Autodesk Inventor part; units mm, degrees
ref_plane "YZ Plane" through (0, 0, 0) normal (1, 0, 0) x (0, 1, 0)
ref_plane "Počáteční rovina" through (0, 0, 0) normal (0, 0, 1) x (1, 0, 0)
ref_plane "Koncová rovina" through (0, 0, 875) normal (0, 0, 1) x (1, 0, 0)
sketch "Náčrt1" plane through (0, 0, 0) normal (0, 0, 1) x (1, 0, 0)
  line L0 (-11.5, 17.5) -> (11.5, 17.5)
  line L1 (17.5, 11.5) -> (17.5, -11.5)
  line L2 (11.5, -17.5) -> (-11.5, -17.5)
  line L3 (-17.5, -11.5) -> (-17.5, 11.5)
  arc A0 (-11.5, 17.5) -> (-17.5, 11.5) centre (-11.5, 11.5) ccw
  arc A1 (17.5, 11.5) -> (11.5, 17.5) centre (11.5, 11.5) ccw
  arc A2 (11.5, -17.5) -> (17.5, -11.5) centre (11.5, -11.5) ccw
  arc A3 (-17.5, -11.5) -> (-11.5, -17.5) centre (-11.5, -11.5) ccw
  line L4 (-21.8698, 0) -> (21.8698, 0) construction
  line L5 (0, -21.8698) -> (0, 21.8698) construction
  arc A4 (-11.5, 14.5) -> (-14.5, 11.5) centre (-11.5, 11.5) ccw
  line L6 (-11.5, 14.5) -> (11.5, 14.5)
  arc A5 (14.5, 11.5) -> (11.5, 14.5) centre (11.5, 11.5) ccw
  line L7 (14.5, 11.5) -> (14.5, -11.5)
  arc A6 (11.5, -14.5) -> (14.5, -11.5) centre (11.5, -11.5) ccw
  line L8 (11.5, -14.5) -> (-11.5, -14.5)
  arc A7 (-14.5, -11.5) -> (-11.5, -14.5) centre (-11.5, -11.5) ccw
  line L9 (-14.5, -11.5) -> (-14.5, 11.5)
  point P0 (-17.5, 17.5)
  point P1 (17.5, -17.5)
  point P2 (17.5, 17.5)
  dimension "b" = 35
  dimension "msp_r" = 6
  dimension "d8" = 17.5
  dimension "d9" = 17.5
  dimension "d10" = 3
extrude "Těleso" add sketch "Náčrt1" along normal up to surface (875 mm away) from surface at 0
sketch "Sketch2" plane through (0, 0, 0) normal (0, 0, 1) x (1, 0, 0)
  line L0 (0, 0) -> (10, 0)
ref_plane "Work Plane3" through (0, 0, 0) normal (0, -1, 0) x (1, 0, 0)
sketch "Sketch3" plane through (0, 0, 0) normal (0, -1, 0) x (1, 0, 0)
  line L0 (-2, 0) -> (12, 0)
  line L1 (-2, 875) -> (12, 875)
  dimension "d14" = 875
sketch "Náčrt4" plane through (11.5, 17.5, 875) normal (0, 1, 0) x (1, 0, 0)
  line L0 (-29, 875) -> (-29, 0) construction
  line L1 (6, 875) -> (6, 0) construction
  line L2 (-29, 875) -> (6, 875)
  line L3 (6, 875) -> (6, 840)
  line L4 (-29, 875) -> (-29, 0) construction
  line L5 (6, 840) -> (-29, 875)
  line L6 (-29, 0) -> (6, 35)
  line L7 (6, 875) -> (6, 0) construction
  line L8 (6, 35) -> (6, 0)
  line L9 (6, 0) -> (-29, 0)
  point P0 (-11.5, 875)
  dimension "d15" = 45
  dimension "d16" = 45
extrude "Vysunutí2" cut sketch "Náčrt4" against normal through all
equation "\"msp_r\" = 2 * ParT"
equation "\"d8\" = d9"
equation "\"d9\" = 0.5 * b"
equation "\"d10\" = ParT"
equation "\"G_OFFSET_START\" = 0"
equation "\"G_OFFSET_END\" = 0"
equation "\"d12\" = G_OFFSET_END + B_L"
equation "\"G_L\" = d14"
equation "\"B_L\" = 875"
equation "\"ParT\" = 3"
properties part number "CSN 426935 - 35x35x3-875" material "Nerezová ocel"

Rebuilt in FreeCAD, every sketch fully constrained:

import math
import FreeCAD as App
import Part
import Sketcher

V = App.Vector

doc = App.newDocument("Part")
params = doc.addObject("Spreadsheet::Sheet", "Params")
for row, (alias, value) in enumerate([
    ("sketch1_radius", "6 mm"),
    ("sketch1_radius2", "3 mm"),
    ("pad1_length", "875 mm"),
    ("sketch2_width", "35 mm"),
], start=1):
    params.set(f"A{row}", alias)
    params.set(f"B{row}", "=" + value)
    params.setAlias(f"B{row}", alias)

body = doc.addObject("PartDesign::Body", "Body")

sketch1 = doc.addObject("Sketcher::SketchObject", "Sketch")
body.addObject(sketch1)
sketch1.AttachmentSupport = (doc.XY_Plane, [""])
sketch1.MapMode = "FlatFace"
sketch1.addGeometry([
    Part.LineSegment(V(11.5, 17.5, 0), V(-11.5, 17.5, 0)),
    Part.ArcOfCircle(Part.Circle(V(-11.5, 11.5, 0), V(0, 0, 1), 6), math.radians(90), math.radians(180)),
    Part.LineSegment(V(-17.5, 11.5, 0), V(-17.5, -11.5, 0)),
    Part.ArcOfCircle(Part.Circle(V(-11.5, -11.5, 0), V(0, 0, 1), 6), math.radians(180), math.radians(270)),
    Part.LineSegment(V(-11.5, -17.5, 0), V(11.5, -17.5, 0)),
    Part.ArcOfCircle(Part.Circle(V(11.5, -11.5, 0), V(0, 0, 1), 6), math.radians(-90), math.radians(0)),
    Part.LineSegment(V(17.5, -11.5, 0), V(17.5, 11.5, 0)),
    Part.ArcOfCircle(Part.Circle(V(11.5, 11.5, 0), V(0, 0, 1), 6), math.radians(0), math.radians(90)),
    Part.ArcOfCircle(Part.Circle(V(-11.5, 11.5, 0), V(0, 0, 1), 3), math.radians(90), math.radians(180)),
    Part.LineSegment(V(-11.5, 14.5, 0), V(11.5, 14.5, 0)),
    Part.ArcOfCircle(Part.Circle(V(11.5, 11.5, 0), V(0, 0, 1), 3), math.radians(0), math.radians(90)),
    Part.LineSegment(V(14.5, 11.5, 0), V(14.5, -11.5, 0)),
    Part.ArcOfCircle(Part.Circle(V(11.5, -11.5, 0), V(0, 0, 1), 3), math.radians(-90), math.radians(0)),
    Part.LineSegment(V(11.5, -14.5, 0), V(-11.5, -14.5, 0)),
    Part.ArcOfCircle(Part.Circle(V(-11.5, -11.5, 0), V(0, 0, 1), 3), math.radians(180), math.radians(270)),
    Part.LineSegment(V(-14.5, -11.5, 0), V(-14.5, 11.5, 0)),
], False)
sketch1.addConstraint([
    Sketcher.Constraint("Tangent", 0, 2, 1, 1),
    Sketcher.Constraint("Tangent", 1, 2, 2, 1),
    Sketcher.Constraint("Tangent", 2, 2, 3, 1),
    Sketcher.Constraint("Tangent", 3, 2, 4, 1),
    Sketcher.Constraint("Tangent", 4, 2, 5, 1),
    Sketcher.Constraint("Tangent", 5, 2, 6, 1),
    Sketcher.Constraint("Tangent", 6, 2, 7, 1),
    Sketcher.Constraint("Tangent", 7, 2, 0, 1),
    Sketcher.Constraint("Tangent", 8, 1, 9, 1),
    Sketcher.Constraint("Tangent", 9, 2, 10, 2),
    Sketcher.Constraint("Tangent", 10, 1, 11, 1),
    Sketcher.Constraint("Tangent", 11, 2, 12, 2),
    Sketcher.Constraint("Tangent", 12, 1, 13, 1),
    Sketcher.Constraint("Tangent", 13, 2, 14, 2),
    Sketcher.Constraint("Tangent", 14, 1, 15, 1),
    Sketcher.Constraint("Tangent", 15, 2, 8, 2),
    Sketcher.Constraint("Horizontal", 0),
    Sketcher.Constraint("Vertical", 2),
    Sketcher.Constraint("Horizontal", 4),
    Sketcher.Constraint("Vertical", 6),
    Sketcher.Constraint("Horizontal", 9),
    Sketcher.Constraint("Vertical", 11),
    Sketcher.Constraint("Horizontal", 13),
    Sketcher.Constraint("Vertical", 15),
    Sketcher.Constraint("Coincident", 8, 3, 1, 3),
    Sketcher.Constraint("Coincident", 10, 3, 7, 3),
    Sketcher.Constraint("Coincident", 12, 3, 5, 3),
    Sketcher.Constraint("Equal", 1, 3),
    Sketcher.Constraint("Equal", 3, 5),
    Sketcher.Constraint("Equal", 5, 7),
    Sketcher.Constraint("Equal", 12, 14),
    Sketcher.Constraint("Symmetric", 1, 3, 5, 3, -1, 1),
    Sketcher.Constraint("Equal", 13, 2),
    Sketcher.Constraint("Radius", 1, 6.0),
    Sketcher.Constraint("Radius", 8, 3.0),
    Sketcher.Constraint("DistanceY", -1, 1, 0, 2, 17.5),
])
sketch1.setExpression("Constraints[33]", "Params.sketch1_radius")
sketch1.setExpression("Constraints[34]", "Params.sketch1_radius2")
pad1 = doc.addObject("PartDesign::Pad", "Pad")
body.addObject(pad1)
pad1.Profile = sketch1
pad1.setExpression("Length", "Params.pad1_length")

sketch2 = doc.addObject("Sketcher::SketchObject", "Sketch001")
body.addObject(sketch2)
sketch2.AttachmentSupport = (doc.XZ_Plane, [""])
sketch2.MapMode = "FlatFace"
sketch2.AttachmentOffset = App.Placement(V(0, 0, -17.5), App.Rotation())
sketch2.addGeometry([
    Part.LineSegment(V(18, 0, 0), V(-18, 0, 0)),
    Part.LineSegment(V(-18, 0, 0), V(18, 35, 0)),
    Part.LineSegment(V(18, 35, 0), V(18, 0, 0)),
    Part.LineSegment(V(18, 840, 0), V(-18, 875, 0)),
    Part.LineSegment(V(-18, 875, 0), V(18, 875, 0)),
    Part.LineSegment(V(18, 875, 0), V(18, 840, 0)),
], False)
sketch2.addConstraint([
    Sketcher.Constraint("Coincident", 0, 2, 1, 1),
    Sketcher.Constraint("Coincident", 1, 2, 2, 1),
    Sketcher.Constraint("Coincident", 2, 2, 0, 1),
    Sketcher.Constraint("Coincident", 3, 2, 4, 1),
    Sketcher.Constraint("Coincident", 4, 2, 5, 1),
    Sketcher.Constraint("Coincident", 5, 2, 3, 1),
    Sketcher.Constraint("Horizontal", 0),
    Sketcher.Constraint("Vertical", 2),
    Sketcher.Constraint("Horizontal", 4),
    Sketcher.Constraint("Vertical", 5),
    Sketcher.Constraint("Symmetric", 0, 2, 2, 2, -1, 1),
    Sketcher.Constraint("Perpendicular", 1, 3),
    Sketcher.Constraint("Vertical", 0, 2, 3, 2),
    Sketcher.Constraint("Vertical", 2, 2, 4, 2),
    Sketcher.Constraint("Equal", 4, 2),
    Sketcher.Constraint("DistanceX", 0, 2, 0, 1, 35.0),
    Sketcher.Constraint("DistanceY", -1, 1, 3, 2, 875.0),
])
sketch2.setExpression("Constraints[15]", "Params.sketch2_width")
pocket1 = doc.addObject("PartDesign::Pocket", "Pocket")
body.addObject(pocket1)
pocket1.Profile = sketch2
pocket1.Type = "ThroughAll"
pocket1.Reversed = True

doc.recompute()
